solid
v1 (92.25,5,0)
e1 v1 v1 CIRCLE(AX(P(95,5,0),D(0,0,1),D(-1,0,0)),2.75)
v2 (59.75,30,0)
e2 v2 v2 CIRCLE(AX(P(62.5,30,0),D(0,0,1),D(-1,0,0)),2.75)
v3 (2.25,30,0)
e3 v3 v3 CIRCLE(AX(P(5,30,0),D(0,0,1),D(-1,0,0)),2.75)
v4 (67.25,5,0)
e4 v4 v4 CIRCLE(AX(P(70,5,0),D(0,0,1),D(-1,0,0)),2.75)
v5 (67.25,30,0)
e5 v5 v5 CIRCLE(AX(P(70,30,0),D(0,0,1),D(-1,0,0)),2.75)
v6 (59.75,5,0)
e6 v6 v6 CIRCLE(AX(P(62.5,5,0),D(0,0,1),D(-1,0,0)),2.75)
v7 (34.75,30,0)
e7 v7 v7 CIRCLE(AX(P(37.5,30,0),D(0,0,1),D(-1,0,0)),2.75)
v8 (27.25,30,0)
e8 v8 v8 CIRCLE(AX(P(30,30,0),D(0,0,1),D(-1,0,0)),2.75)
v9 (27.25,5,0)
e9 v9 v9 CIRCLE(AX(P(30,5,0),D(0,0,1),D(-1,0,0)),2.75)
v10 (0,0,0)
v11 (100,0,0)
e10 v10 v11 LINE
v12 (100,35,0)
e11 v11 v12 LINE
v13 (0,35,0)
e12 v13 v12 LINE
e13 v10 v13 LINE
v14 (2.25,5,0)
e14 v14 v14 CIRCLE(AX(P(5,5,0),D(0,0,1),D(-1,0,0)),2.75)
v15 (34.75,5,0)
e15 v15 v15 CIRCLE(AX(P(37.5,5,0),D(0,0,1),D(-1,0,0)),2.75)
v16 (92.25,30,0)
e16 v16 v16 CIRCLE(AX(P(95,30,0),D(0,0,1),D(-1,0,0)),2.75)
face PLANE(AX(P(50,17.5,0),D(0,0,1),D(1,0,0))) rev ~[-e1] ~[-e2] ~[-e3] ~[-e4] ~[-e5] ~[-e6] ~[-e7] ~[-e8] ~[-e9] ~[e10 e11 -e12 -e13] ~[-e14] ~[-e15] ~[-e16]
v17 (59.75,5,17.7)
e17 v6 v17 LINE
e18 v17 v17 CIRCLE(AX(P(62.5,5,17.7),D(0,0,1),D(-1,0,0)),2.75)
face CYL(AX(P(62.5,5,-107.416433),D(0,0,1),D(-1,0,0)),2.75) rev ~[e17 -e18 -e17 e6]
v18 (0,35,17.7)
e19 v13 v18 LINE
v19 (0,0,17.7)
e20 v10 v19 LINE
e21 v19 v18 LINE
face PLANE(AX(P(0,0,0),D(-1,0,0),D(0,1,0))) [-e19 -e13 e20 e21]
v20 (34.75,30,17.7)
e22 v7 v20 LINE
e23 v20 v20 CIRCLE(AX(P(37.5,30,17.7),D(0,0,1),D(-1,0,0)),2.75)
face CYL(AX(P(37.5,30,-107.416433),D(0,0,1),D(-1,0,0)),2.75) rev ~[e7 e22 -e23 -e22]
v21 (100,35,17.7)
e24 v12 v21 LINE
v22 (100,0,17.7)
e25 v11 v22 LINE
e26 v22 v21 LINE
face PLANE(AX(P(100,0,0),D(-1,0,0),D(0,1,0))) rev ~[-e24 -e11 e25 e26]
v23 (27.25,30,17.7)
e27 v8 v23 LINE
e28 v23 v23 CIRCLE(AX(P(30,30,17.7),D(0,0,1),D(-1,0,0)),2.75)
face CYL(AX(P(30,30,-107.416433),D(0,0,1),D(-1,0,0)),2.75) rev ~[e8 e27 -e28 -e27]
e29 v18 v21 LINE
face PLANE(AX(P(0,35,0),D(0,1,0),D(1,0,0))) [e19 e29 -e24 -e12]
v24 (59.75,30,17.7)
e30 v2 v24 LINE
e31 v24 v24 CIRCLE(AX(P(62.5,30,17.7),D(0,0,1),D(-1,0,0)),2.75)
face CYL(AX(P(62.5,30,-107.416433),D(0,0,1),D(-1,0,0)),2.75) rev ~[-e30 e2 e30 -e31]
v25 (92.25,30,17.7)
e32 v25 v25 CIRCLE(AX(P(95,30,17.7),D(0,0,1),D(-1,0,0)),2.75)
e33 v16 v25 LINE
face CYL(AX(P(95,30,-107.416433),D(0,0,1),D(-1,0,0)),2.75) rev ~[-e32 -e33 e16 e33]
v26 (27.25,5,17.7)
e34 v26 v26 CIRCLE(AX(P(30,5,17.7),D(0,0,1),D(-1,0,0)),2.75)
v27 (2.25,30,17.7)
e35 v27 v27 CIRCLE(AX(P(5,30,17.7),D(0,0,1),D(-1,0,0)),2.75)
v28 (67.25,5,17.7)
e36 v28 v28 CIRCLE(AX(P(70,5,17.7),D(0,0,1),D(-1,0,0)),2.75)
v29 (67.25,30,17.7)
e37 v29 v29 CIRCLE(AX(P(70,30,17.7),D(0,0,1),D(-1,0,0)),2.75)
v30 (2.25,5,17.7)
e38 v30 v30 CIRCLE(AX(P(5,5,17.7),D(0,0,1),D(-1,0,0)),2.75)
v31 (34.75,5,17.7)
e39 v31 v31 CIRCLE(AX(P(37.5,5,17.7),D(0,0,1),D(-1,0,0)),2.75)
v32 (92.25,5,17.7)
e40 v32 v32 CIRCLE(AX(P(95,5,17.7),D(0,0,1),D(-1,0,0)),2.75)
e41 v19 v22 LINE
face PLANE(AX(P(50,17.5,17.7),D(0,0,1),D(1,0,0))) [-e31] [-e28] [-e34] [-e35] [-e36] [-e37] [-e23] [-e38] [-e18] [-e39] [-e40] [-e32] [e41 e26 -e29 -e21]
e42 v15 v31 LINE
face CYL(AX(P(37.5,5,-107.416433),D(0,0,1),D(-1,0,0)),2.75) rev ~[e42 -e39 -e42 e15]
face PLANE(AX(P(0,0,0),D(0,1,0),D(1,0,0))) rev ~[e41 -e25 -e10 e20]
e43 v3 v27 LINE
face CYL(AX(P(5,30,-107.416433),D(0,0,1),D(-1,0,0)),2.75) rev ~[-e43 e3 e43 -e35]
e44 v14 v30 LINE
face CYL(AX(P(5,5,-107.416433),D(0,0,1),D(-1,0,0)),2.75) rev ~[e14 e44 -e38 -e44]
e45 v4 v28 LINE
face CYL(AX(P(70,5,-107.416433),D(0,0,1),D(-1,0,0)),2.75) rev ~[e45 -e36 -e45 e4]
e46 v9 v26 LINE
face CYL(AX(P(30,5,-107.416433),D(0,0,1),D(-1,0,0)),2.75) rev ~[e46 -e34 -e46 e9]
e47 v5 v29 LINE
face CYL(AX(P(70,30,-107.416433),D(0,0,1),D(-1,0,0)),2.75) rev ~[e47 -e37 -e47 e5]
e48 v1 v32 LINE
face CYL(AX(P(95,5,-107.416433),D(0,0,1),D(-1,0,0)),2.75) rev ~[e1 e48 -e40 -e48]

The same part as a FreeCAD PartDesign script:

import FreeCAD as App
import Part
import Sketcher


def add_polygon(sketch, points):
    """Adds a closed chain of lines whose ends are joined by coincident constraints."""
    first, n = sketch.GeometryCount, len(points)
    for a, b in zip(points, points[1:] + points[:1]):
        sketch.addGeometry(Part.LineSegment(App.Vector(*a, 0), App.Vector(*b, 0)), False)
    for i in range(n):
        sketch.addConstraint(Sketcher.Constraint("Coincident", first + i, 2, first + (i + 1) % n, 1))

doc = App.newDocument("Part")
body = doc.addObject("PartDesign::Body", "Body")

# Sketch on XY plane
sketch1 = body.newObject("Sketcher::SketchObject", "Sketch")
sketch1.AttachmentSupport = (doc.getObject("XY_Plane"), [""])
sketch1.MapMode = "FlatFace"
add_polygon(sketch1, [(0, 35), (0, 0), (100, 0), (100, 35)])  # lines 0-3
sketch1.addConstraint([
    Sketcher.Constraint("Vertical", 0),
    Sketcher.Constraint("Horizontal", 1),
    Sketcher.Constraint("Vertical", 2),
    Sketcher.Constraint("Horizontal", 3),
    Sketcher.Constraint("Coincident", 0, 2, -1, 1),
    Sketcher.Constraint("DistanceX", 1, 1, 1, 2, 100.0),
    Sketcher.Constraint("DistanceY", 0, 2, 0, 1, 35.0),
])
pad1 = body.newObject("PartDesign::Pad", "Pad")
pad1.Profile = sketch1
pad1.Length = 17.7

# Sketch on XY plane
sketch2 = body.newObject("Sketcher::SketchObject", "Sketch001")
sketch2.AttachmentSupport = (doc.getObject("XY_Plane"), [""])
sketch2.MapMode = "FlatFace"
sketch2.addGeometry([
    Part.Circle(App.Vector(5, 30, 0), App.Vector(0, 0, 1), 2.8),  # 0
    Part.Circle(App.Vector(5, 5, 0), App.Vector(0, 0, 1), 2.8),  # 1
    Part.Circle(App.Vector(30, 5, 0), App.Vector(0, 0, 1), 2.8),  # 2
    Part.Circle(App.Vector(37.5, 5, 0), App.Vector(0, 0, 1), 2.8),  # 3
    Part.Circle(App.Vector(37.5, 30, 0), App.Vector(0, 0, 1), 2.8),  # 4
    Part.Circle(App.Vector(30, 30, 0), App.Vector(0, 0, 1), 2.8),  # 5
    Part.Circle(App.Vector(62.5, 30, 0), App.Vector(0, 0, 1), 2.8),  # 6
    Part.Circle(App.Vector(62.5, 5, 0), App.Vector(0, 0, 1), 2.8),  # 7
    Part.Circle(App.Vector(70, 5, 0), App.Vector(0, 0, 1), 2.8),  # 8
    Part.Circle(App.Vector(70, 30, 0), App.Vector(0, 0, 1), 2.8),  # 9
    Part.Circle(App.Vector(95, 30, 0), App.Vector(0, 0, 1), 2.8),  # 10
    Part.Circle(App.Vector(95, 5, 0), App.Vector(0, 0, 1), 2.8),  # 11
], False)
sketch2.addConstraint([
    Sketcher.Constraint("Equal", 0, 1),
    Sketcher.Constraint("Equal", 1, 2),
    Sketcher.Constraint("Equal", 2, 3),
    Sketcher.Constraint("Equal", 3, 4),
    Sketcher.Constraint("Equal", 4, 5),
    Sketcher.Constraint("Equal", 5, 6),
    Sketcher.Constraint("Equal", 6, 7),
    Sketcher.Constraint("Equal", 7, 8),
    Sketcher.Constraint("Equal", 8, 9),
    Sketcher.Constraint("Equal", 9, 10),
    Sketcher.Constraint("Equal", 10, 11),
    Sketcher.Constraint("Horizontal", 1, 3, 2, 3),
    Sketcher.Constraint("Horizontal", 2, 3, 3, 3),
    Sketcher.Constraint("Horizontal", 0, 3, 4, 3),
    Sketcher.Constraint("Horizontal", 4, 3, 5, 3),
    Sketcher.Constraint("Horizontal", 5, 3, 6, 3),
    Sketcher.Constraint("Horizontal", 3, 3, 7, 3),
    Sketcher.Constraint("Horizontal", 7, 3, 8, 3),
    Sketcher.Constraint("Horizontal", 6, 3, 9, 3),
    Sketcher.Constraint("Horizontal", 9, 3, 10, 3),
    Sketcher.Constraint("Horizontal", 8, 3, 11, 3),
    Sketcher.Constraint("Vertical", 0, 3, 1, 3),
    Sketcher.Constraint("Vertical", 3, 3, 4, 3),
    Sketcher.Constraint("Vertical", 2, 3, 5, 3),
    Sketcher.Constraint("Vertical", 6, 3, 7, 3),
    Sketcher.Constraint("Vertical", 8, 3, 9, 3),
    Sketcher.Constraint("Vertical", 10, 3, 11, 3),
    Sketcher.Constraint("Diameter", 0, 5.5),
    Sketcher.Constraint("DistanceX", -1, 1, 0, 3, 5.0),
    Sketcher.Constraint("DistanceY", -1, 1, 0, 3, 30.0),
    Sketcher.Constraint("DistanceY", -1, 1, 1, 3, 5.0),
    Sketcher.Constraint("DistanceX", -1, 1, 2, 3, 30.0),
    Sketcher.Constraint("DistanceX", -1, 1, 8, 3, 70.0),
    Sketcher.Constraint("DistanceX", -1, 1, 10, 3, 95.0),
    Sketcher.Constraint("DistanceX", 4, 3, 6, 3, 25.0),
    Sketcher.Constraint("DistanceX", -1, 1, 3, 3, 37.5),
])
doc.recompute()
hole = body.newObject("PartDesign::Hole", "Hole")
hole.Profile = sketch2
hole.ThreadType = "None"
hole.Diameter = 5.5
hole.DepthType = "ThroughAll"
hole.Reversed = True

doc.recompute()
